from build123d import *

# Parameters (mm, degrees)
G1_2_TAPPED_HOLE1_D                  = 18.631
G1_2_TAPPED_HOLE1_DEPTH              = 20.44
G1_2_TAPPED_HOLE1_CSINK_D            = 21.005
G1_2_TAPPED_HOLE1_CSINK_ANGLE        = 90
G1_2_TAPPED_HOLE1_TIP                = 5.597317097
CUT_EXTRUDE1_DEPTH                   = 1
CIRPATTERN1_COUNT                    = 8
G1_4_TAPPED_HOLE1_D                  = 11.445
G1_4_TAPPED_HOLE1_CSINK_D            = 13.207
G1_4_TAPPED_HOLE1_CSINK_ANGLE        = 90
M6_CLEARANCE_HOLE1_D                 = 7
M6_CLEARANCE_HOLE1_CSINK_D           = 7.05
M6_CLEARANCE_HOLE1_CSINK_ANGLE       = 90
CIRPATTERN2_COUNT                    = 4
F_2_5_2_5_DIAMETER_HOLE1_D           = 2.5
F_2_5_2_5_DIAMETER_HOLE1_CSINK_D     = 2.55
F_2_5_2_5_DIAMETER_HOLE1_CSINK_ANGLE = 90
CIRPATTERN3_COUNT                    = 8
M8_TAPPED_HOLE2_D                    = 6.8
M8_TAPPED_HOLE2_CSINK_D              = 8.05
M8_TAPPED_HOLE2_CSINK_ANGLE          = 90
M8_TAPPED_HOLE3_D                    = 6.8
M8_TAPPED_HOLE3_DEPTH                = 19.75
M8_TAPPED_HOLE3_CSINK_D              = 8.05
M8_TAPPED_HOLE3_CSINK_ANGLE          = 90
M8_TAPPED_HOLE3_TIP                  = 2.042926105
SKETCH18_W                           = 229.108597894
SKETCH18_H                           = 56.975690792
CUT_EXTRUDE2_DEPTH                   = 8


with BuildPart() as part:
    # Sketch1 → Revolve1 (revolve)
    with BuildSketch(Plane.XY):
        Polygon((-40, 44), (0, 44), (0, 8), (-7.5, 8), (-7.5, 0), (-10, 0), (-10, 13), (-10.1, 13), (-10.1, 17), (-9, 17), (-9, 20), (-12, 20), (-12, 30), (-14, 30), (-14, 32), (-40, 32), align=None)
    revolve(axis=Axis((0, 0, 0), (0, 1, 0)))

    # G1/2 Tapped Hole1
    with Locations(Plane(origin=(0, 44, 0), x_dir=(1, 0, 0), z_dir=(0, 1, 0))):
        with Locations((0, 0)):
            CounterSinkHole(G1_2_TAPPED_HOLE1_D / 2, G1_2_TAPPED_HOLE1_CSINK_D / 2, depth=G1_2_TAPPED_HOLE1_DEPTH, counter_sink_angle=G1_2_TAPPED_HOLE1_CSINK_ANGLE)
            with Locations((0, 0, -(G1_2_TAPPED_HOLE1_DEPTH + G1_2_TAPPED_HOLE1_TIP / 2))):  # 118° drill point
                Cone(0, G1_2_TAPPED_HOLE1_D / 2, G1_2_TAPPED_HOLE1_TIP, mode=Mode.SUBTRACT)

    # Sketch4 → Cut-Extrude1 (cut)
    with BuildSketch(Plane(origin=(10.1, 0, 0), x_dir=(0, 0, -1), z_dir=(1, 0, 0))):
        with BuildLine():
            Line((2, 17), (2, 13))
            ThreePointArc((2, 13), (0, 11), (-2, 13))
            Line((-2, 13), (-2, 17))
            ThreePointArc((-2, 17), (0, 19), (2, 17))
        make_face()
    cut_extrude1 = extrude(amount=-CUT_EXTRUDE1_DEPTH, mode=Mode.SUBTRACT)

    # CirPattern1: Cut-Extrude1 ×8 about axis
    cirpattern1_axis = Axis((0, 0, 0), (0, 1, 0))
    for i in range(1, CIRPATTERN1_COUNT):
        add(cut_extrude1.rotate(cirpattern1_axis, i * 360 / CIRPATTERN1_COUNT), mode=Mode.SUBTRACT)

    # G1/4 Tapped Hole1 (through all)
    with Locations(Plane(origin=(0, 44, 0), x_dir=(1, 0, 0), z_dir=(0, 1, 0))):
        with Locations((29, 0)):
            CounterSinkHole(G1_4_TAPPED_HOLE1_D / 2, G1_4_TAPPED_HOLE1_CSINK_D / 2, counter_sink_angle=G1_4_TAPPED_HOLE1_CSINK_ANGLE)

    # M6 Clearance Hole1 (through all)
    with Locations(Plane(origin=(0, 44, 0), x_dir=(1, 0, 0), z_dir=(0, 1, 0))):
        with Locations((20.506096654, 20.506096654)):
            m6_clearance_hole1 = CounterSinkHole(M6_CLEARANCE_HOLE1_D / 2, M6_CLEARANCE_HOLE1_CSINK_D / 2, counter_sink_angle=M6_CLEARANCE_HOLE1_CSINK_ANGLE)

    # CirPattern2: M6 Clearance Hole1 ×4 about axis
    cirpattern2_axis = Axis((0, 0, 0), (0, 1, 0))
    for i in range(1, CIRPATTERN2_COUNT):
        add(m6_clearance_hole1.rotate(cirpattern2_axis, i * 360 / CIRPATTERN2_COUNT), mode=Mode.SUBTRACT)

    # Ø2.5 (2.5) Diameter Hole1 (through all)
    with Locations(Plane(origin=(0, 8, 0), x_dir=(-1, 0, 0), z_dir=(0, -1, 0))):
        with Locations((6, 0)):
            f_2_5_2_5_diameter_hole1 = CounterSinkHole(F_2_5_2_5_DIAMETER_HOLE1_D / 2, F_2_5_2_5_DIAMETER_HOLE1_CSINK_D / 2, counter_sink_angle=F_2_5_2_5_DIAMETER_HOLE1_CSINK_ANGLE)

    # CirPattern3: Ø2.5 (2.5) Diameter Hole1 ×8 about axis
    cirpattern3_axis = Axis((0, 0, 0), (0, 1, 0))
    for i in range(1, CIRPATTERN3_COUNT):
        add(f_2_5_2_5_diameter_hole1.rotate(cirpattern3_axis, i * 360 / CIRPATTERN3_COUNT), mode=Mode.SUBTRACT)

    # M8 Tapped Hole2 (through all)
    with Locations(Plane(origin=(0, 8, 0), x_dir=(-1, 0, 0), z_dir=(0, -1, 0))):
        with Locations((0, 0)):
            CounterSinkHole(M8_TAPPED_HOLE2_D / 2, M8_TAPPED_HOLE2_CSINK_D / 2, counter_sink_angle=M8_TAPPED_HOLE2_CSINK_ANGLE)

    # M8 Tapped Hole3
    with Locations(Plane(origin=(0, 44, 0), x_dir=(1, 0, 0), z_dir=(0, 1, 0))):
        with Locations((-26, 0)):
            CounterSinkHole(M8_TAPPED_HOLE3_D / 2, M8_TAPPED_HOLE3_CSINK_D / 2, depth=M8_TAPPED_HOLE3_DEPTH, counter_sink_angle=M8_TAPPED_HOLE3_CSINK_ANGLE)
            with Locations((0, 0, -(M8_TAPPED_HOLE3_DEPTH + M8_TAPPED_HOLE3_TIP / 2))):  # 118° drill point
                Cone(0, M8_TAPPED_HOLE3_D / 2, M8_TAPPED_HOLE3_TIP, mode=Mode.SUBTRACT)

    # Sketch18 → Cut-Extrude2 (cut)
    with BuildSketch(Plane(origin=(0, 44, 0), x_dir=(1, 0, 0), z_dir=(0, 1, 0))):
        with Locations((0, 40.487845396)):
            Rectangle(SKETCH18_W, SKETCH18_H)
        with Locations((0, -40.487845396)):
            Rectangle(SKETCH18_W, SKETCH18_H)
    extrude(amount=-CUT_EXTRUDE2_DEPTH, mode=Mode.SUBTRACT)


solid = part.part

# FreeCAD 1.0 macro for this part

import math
import FreeCAD as App
import Part
import Sketcher

V = App.Vector

doc = App.newDocument("Part")
params = doc.addObject("Spreadsheet::Sheet", "Params")
for row, (alias, value) in enumerate([
    ("sketch1_width", "40 mm"),
    ("sketch1_width2", "26 mm"),
    ("sketch1_width3", "2 mm"),
    ("sketch1_width4", "3 mm"),
    ("sketch1_height", "12 mm"),
    ("revolution_angle", "360 deg"),
    ("hole_diameter", "18.631 mm"),
    ("hole_depth", "20.44 mm"),
    ("hole_csink_diameter", "21.005 mm"),
    ("sketch3_radius", "2 mm"),
    ("sketch3_width", "4 mm"),
    ("pocket1_length", "1 mm"),
    ("hole2_diameter", "11.445 mm"),
    ("hole2_csink_diameter", "13.207 mm"),
    ("sketch5_diameter", "7 mm"),
    ("hole3_diameter", "7 mm"),
    ("hole3_csink_diameter", "7.05 mm"),
    ("sketch6_diameter", "2.5 mm"),
    ("hole4_diameter", "2.5 mm"),
    ("hole4_csink_diameter", "2.55 mm"),
    ("sketch7_diameter", "6.8 mm"),
    ("hole5_diameter", "6.8 mm"),
    ("hole5_csink_diameter", "8.05 mm"),
    ("sketch8_diameter", "6.8 mm"),
    ("hole6_diameter", "6.8 mm"),
    ("hole6_depth", "19.75 mm"),
    ("hole6_csink_diameter", "8.05 mm"),
    ("pocket2_length", "8 mm"),
], start=1):
    params.set(f"A{row}", alias)
    params.set(f"B{row}", "=" + value)
    params.setAlias(f"B{row}", alias)

body = doc.addObject("PartDesign::Body", "Body")

sketch1 = body.newObject("Sketcher::SketchObject", "Sketch")
sketch1.AttachmentSupport = (doc.getObject("XY_Plane"), [""])
sketch1.MapMode = "FlatFace"
sketch1.addGeometry([
    Part.LineSegment(V(0, 44, 0), V(-40, 44, 0)),
    Part.LineSegment(V(-40, 44, 0), V(-40, 32, 0)),
    Part.LineSegment(V(-40, 32, 0), V(-14, 32, 0)),
    Part.LineSegment(V(-14, 32, 0), V(-14, 30, 0)),
    Part.LineSegment(V(-14, 30, 0), V(-12, 30, 0)),
    Part.LineSegment(V(-12, 30, 0), V(-12, 20, 0)),
    Part.LineSegment(V(-12, 20, 0), V(-9, 20, 0)),
    Part.LineSegment(V(-9, 20, 0), V(-9, 17, 0)),
    Part.LineSegment(V(-9, 17, 0), V(-10.1, 17, 0)),
    Part.LineSegment(V(-10.1, 17, 0), V(-10.1, 13, 0)),
    Part.LineSegment(V(-10.1, 13, 0), V(-10, 13, 0)),
    Part.LineSegment(V(-10, 13, 0), V(-10, 0, 0)),
    Part.LineSegment(V(-10, 0, 0), V(-7.5, 0, 0)),
    Part.LineSegment(V(-7.5, 0, 0), V(-7.5, 8, 0)),
    Part.LineSegment(V(-7.5, 8, 0), V(0, 8, 0)),
    Part.LineSegment(V(0, 8, 0), V(0, 44, 0)),
], False)
sketch1.addConstraint([
    Sketcher.Constraint("Coincident", 0, 2, 1, 1),
    Sketcher.Constraint("Coincident", 1, 2, 2, 1),
    Sketcher.Constraint("Coincident", 2, 2, 3, 1),
    Sketcher.Constraint("Coincident", 3, 2, 4, 1),
    Sketcher.Constraint("Coincident", 4, 2, 5, 1),
    Sketcher.Constraint("Coincident", 5, 2, 6, 1),
    Sketcher.Constraint("Coincident", 6, 2, 7, 1),
    Sketcher.Constraint("Coincident", 7, 2, 8, 1),
    Sketcher.Constraint("Coincident", 8, 2, 9, 1),
    Sketcher.Constraint("Coincident", 9, 2, 10, 1),
    Sketcher.Constraint("Coincident", 10, 2, 11, 1),
    Sketcher.Constraint("Coincident", 11, 2, 12, 1),
    Sketcher.Constraint("Coincident", 12, 2, 13, 1),
    Sketcher.Constraint("Coincident", 13, 2, 14, 1),
    Sketcher.Constraint("Coincident", 14, 2, 15, 1),
    Sketcher.Constraint("Coincident", 15, 2, 0, 1),
    Sketcher.Constraint("Horizontal", 0),
    Sketcher.Constraint("Vertical", 1),
    Sketcher.Constraint("Horizontal", 2),
    Sketcher.Constraint("Vertical", 3),
    Sketcher.Constraint("Horizontal", 4),
    Sketcher.Constraint("Vertical", 5),
    Sketcher.Constraint("Horizontal", 6),
    Sketcher.Constraint("Vertical", 7),
    Sketcher.Constraint("Horizontal", 8),
    Sketcher.Constraint("Vertical", 9),
    Sketcher.Constraint("Horizontal", 10),
    Sketcher.Constraint("Vertical", 11),
    Sketcher.Constraint("Horizontal", 12),
    Sketcher.Constraint("Vertical", 13),
    Sketcher.Constraint("Horizontal", 14),
    Sketcher.Constraint("Vertical", 15),
    Sketcher.Constraint("PointOnObject", 11, 2, -1),
    Sketcher.Constraint("PointOnObject", 14, 2, -2),
    Sketcher.Constraint("Equal", 4, 3),
    Sketcher.Constraint("Equal", 6, 7),
    Sketcher.Constraint("DistanceX", 0, 2, 0, 1, 40.0),
    Sketcher.Constraint("DistanceX", 2, 1, 2, 2, 26.0),
    Sketcher.Constraint("DistanceX", 4, 1, 4, 2, 2.0),
    Sketcher.Constraint("DistanceX", 6, 1, 6, 2, 3.0),
    Sketcher.Constraint("DistanceY", 1, 2, 1, 1, 12.0),
    Sketcher.Constraint("DistanceY", 5, 2, 5, 1, 10.0),
    Sketcher.Constraint("DistanceY", 9, 2, 9, 1, 4.0),
    Sketcher.Constraint("DistanceY", 11, 2, 11, 1, 13.0),
    Sketcher.Constraint("DistanceY", 13, 1, 13, 2, 8.0),
    Sketcher.Constraint("DistanceX", 8, 2, 8, 1, 1.1),
    Sketcher.Constraint("DistanceX", 10, 1, 10, 2, 0.1),
    Sketcher.Constraint("DistanceX", 12, 1, 12, 2, 2.5),
])
sketch1.setExpression("Constraints[36]", "Params.sketch1_width")
sketch1.setExpression("Constraints[37]", "Params.sketch1_width2")
sketch1.setExpression("Constraints[38]", "Params.sketch1_width3")
sketch1.setExpression("Constraints[39]", "Params.sketch1_width4")
sketch1.setExpression("Constraints[40]", "Params.sketch1_height")
revolution = body.newObject("PartDesign::Revolution", "Revolution")
revolution.Profile = sketch1
revolution.ReferenceAxis = (sketch1, ["V_Axis"])
revolution.setExpression("Angle", "Params.revolution_angle")

sketch2 = body.newObject("Sketcher::SketchObject", "Sketch001")
sketch2.AttachmentSupport = (doc.getObject("XZ_Plane"), [""])
sketch2.MapMode = "FlatFace"
sketch2.AttachmentOffset = App.Placement(V(0, 0, -44), App.Rotation())
sketch2.addGeometry(Part.Circle(V(0, 0, 0), V(0, 0, 1), 9), False)
sketch2.addConstraint([
    Sketcher.Constraint("Coincident", 0, 3, -1, 1),
    Sketcher.Constraint("Diameter", 0, 18.631),
])
doc.recompute()
hole = body.newObject("PartDesign::Hole", "Hole")
hole.Profile = sketch2
hole.ThreadType = "None"
hole.setExpression("Diameter", "Params.hole_diameter")
hole.DepthType = "Dimension"
hole.setExpression("Depth", "Params.hole_depth")
hole.DrillPoint = "Angled"
hole.DrillPointAngle = 118
hole.HoleCutType = "Countersink"
hole.setExpression("HoleCutDiameter", "Params.hole_csink_diameter")
hole.HoleCutCountersinkAngle = 90
hole.Reversed = True

sketch3 = body.newObject("Sketcher::SketchObject", "Sketch002")
sketch3.AttachmentSupport = (doc.getObject("YZ_Plane"), [""])
sketch3.MapMode = "FlatFace"
sketch3.AttachmentOffset = App.Placement(V(0, 0, 10.1), App.Rotation())
sketch3.addGeometry([
    Part.LineSegment(V(13, -2, 0), V(17, -2, 0)),
    Part.ArcOfCircle(Part.Circle(V(17, 0, 0), V(0, 0, 1), 2), math.radians(-90), math.radians(90)),
    Part.LineSegment(V(17, 2, 0), V(13, 2, 0)),
    Part.ArcOfCircle(Part.Circle(V(13, 0, 0), V(0, 0, 1), 2), math.radians(90), math.radians(270)),
], False)
sketch3.addConstraint([
    Sketcher.Constraint("Tangent", 0, 2, 1, 1),
    Sketcher.Constraint("Tangent", 1, 2, 2, 1),
    Sketcher.Constraint("Tangent", 2, 2, 3, 1),
    Sketcher.Constraint("Tangent", 3, 2, 0, 1),
    Sketcher.Constraint("Horizontal", 0),
    Sketcher.Constraint("Horizontal", 2),
    Sketcher.Constraint("PointOnObject", 1, 3, -1),
    Sketcher.Constraint("Radius", 1, 2.0),
    Sketcher.Constraint("DistanceX", 0, 1, 0, 2, 4.0),
    Sketcher.Constraint("DistanceX", -1, 1, 1, 3, 17.0),
])
sketch3.setExpression("Constraints[7]", "Params.sketch3_radius")
sketch3.setExpression("Constraints[8]", "Params.sketch3_width")
pocket1 = body.newObject("PartDesign::Pocket", "Pocket")
pocket1.Profile = sketch3
pocket1.setExpression("Length", "Params.pocket1_length")
doc.recompute()

polarpattern = body.newObject("PartDesign::PolarPattern", "PolarPattern")
polarpattern.Originals = [pocket1]
polarpattern.Axis = (doc.getObject("Y_Axis"), [""])
polarpattern.Angle = 360
polarpattern.Occurrences = 8
body.Tip = polarpattern

sketch4 = body.newObject("Sketcher::SketchObject", "Sketch003")
sketch4.AttachmentSupport = (doc.getObject("XZ_Plane"), [""])
sketch4.MapMode = "FlatFace"
sketch4.AttachmentOffset = App.Placement(V(0, 0, -44), App.Rotation())
sketch4.addGeometry(Part.Circle(V(29, 0, 0), V(0, 0, 1), 6), False)
sketch4.addConstraint([
    Sketcher.Constraint("PointOnObject", 0, 3, -1),
    Sketcher.Constraint("Diameter", 0, 11.445),
    Sketcher.Constraint("DistanceX", -1, 1, 0, 3, 29.0),
])
doc.recompute()
hole2 = body.newObject("PartDesign::Hole", "Hole001")
hole2.Profile = sketch4
hole2.ThreadType = "None"
hole2.setExpression("Diameter", "Params.hole2_diameter")
hole2.DepthType = "ThroughAll"
hole2.HoleCutType = "Countersink"
hole2.setExpression("HoleCutDiameter", "Params.hole2_csink_diameter")
hole2.HoleCutCountersinkAngle = 90
hole2.Reversed = True

sketch5 = body.newObject("Sketcher::SketchObject", "Sketch004")
sketch5.AttachmentSupport = (doc.getObject("XZ_Plane"), [""])
sketch5.MapMode = "FlatFace"
sketch5.AttachmentOffset = App.Placement(V(0, 0, -44), App.Rotation())
sketch5.addGeometry(Part.Circle(V(20.5, -20.5, 0), V(0, 0, 1), 3.5), False)
sketch5.addConstraint([
    Sketcher.Constraint("Diameter", 0, 7.0),
    Sketcher.Constraint("DistanceX", -1, 1, 0, 3, 20.506097),
    Sketcher.Constraint("DistanceY", 0, 3, -1, 1, 20.506097),
])
sketch5.setExpression("Constraints[0]", "Params.sketch5_diameter")
doc.recompute()
hole3 = body.newObject("PartDesign::Hole", "Hole002")
hole3.Profile = sketch5
hole3.ThreadType = "None"
hole3.setExpression("Diameter", "Params.hole3_diameter")
hole3.DepthType = "ThroughAll"
hole3.HoleCutType = "Countersink"
hole3.setExpression("HoleCutDiameter", "Params.hole3_csink_diameter")
hole3.HoleCutCountersinkAngle = 90
hole3.Reversed = True
doc.recompute()

polarpattern2 = body.newObject("PartDesign::PolarPattern", "PolarPattern001")
polarpattern2.Originals = [hole3]
polarpattern2.Axis = (doc.getObject("Y_Axis"), [""])
polarpattern2.Angle = 360
polarpattern2.Occurrences = 4
body.Tip = polarpattern2

sketch6 = body.newObject("Sketcher::SketchObject", "Sketch005")
sketch6.AttachmentSupport = (doc.getObject("XZ_Plane"), [""])
sketch6.MapMode = "FlatFace"
sketch6.AttachmentOffset = App.Placement(V(0, 0, -8), App.Rotation())
sketch6.addGeometry(Part.Circle(V(-6, 0, 0), V(0, 0, 1), 1.2), False)
sketch6.addConstraint([
    Sketcher.Constraint("PointOnObject", 0, 3, -1),
    Sketcher.Constraint("Diameter", 0, 2.5),
    Sketcher.Constraint("DistanceX", 0, 3, -1, 1, 6.0),
])
sketch6.setExpression("Constraints[1]", "Params.sketch6_diameter")
doc.recompute()
hole4 = body.newObject("PartDesign::Hole", "Hole003")
hole4.Profile = sketch6
hole4.ThreadType = "None"
hole4.setExpression("Diameter", "Params.hole4_diameter")
hole4.DepthType = "ThroughAll"
hole4.HoleCutType = "Countersink"
hole4.setExpression("HoleCutDiameter", "Params.hole4_csink_diameter")
hole4.HoleCutCountersinkAngle = 90
doc.recompute()

polarpattern3 = body.newObject("PartDesign::PolarPattern", "PolarPattern002")
polarpattern3.Originals = [hole4]
polarpattern3.Axis = (doc.getObject("Y_Axis"), [""])
polarpattern3.Angle = 360
polarpattern3.Occurrences = 8
body.Tip = polarpattern3

sketch7 = body.newObject("Sketcher::SketchObject", "Sketch006")
sketch7.AttachmentSupport = (doc.getObject("XZ_Plane"), [""])
sketch7.MapMode = "FlatFace"
sketch7.AttachmentOffset = App.Placement(V(0, 0, -8), App.Rotation())
sketch7.addGeometry(Part.Circle(V(0, 0, 0), V(0, 0, 1), 3.4), False)
sketch7.addConstraint([
    Sketcher.Constraint("Coincident", 0, 3, -1, 1),
    Sketcher.Constraint("Diameter", 0, 6.8),
])
sketch7.setExpression("Constraints[1]", "Params.sketch7_diameter")
doc.recompute()
hole5 = body.newObject("PartDesign::Hole", "Hole004")
hole5.Profile = sketch7
hole5.ThreadType = "None"
hole5.setExpression("Diameter", "Params.hole5_diameter")
hole5.DepthType = "ThroughAll"
hole5.HoleCutType = "Countersink"
hole5.setExpression("HoleCutDiameter", "Params.hole5_csink_diameter")
hole5.HoleCutCountersinkAngle = 90

sketch8 = body.newObject("Sketcher::SketchObject", "Sketch007")
sketch8.AttachmentSupport = (doc.getObject("XZ_Plane"), [""])
sketch8.MapMode = "FlatFace"
sketch8.AttachmentOffset = App.Placement(V(0, 0, -44), App.Rotation())
sketch8.addGeometry(Part.Circle(V(-26, 0, 0), V(0, 0, 1), 3.4), False)
sketch8.addConstraint([
    Sketcher.Constraint("PointOnObject", 0, 3, -1),
    Sketcher.Constraint("Diameter", 0, 6.8),
    Sketcher.Constraint("DistanceX", 0, 3, -1, 1, 26.0),
])
sketch8.setExpression("Constraints[1]", "Params.sketch8_diameter")
doc.recompute()
hole6 = body.newObject("PartDesign::Hole", "Hole005")
hole6.Profile = sketch8
hole6.ThreadType = "None"
hole6.setExpression("Diameter", "Params.hole6_diameter")
hole6.DepthType = "Dimension"
hole6.setExpression("Depth", "Params.hole6_depth")
hole6.DrillPoint = "Angled"
hole6.DrillPointAngle = 118
hole6.HoleCutType = "Countersink"
hole6.setExpression("HoleCutDiameter", "Params.hole6_csink_diameter")
hole6.HoleCutCountersinkAngle = 90
hole6.Reversed = True

sketch9 = body.newObject("Sketcher::SketchObject", "Sketch008")
sketch9.AttachmentSupport = (doc.getObject("XZ_Plane"), [""])
sketch9.MapMode = "FlatFace"
sketch9.AttachmentOffset = App.Placement(V(0, 0, -44), App.Rotation())
sketch9.addGeometry([
    Part.LineSegment(V(-115, -69, 0), V(-115, -12, 0)),
    Part.LineSegment(V(-115, -12, 0), V(115, -12, 0)),
    Part.LineSegment(V(115, -12, 0), V(115, -69, 0)),
    Part.LineSegment(V(115, -69, 0), V(-115, -69, 0)),
    Part.LineSegment(V(-115, 12, 0), V(-115, 69, 0)),
    Part.LineSegment(V(-115, 69, 0), V(115, 69, 0)),
    Part.LineSegment(V(115, 69, 0), V(115, 12, 0)),
    Part.LineSegment(V(115, 12, 0), V(-115, 12, 0)),
], False)
sketch9.addConstraint([
    Sketcher.Constraint("Coincident", 0, 2, 1, 1),
    Sketcher.Constraint("Coincident", 1, 2, 2, 1),
    Sketcher.Constraint("Coincident", 2, 2, 3, 1),
    Sketcher.Constraint("Coincident", 3, 2, 0, 1),
    Sketcher.Constraint("Coincident", 4, 2, 5, 1),
    Sketcher.Constraint("Coincident", 5, 2, 6, 1),
    Sketcher.Constraint("Coincident", 6, 2, 7, 1),
    Sketcher.Constraint("Coincident", 7, 2, 4, 1),
    Sketcher.Constraint("Vertical", 0),
    Sketcher.Constraint("Horizontal", 1),
    Sketcher.Constraint("Vertical", 2),
    Sketcher.Constraint("Horizontal", 3),
    Sketcher.Constraint("Vertical", 4),
    Sketcher.Constraint("Horizontal", 5),
    Sketcher.Constraint("Vertical", 6),
    Sketcher.Constraint("Horizontal", 7),
    Sketcher.Constraint("Symmetric", 2, 2, 4, 2, -1, 1),
    Sketcher.Constraint("Symmetric", 0, 2, 6, 2, -1, 1),
    Sketcher.Constraint("Vertical", 3, 2, 4, 2),
    Sketcher.Constraint("DistanceY", 0, 2, -1, 1, 12.0),
    Sketcher.Constraint("DistanceY", 0, 1, 0, 2, 56.975691),
    Sketcher.Constraint("DistanceX", 0, 2, -1, 1, 114.554299),
])
pocket2 = body.newObject("PartDesign::Pocket", "Pocket001")
pocket2.Profile = sketch9
pocket2.setExpression("Length", "Params.pocket2_length")
pocket2.Reversed = True

doc.recompute()
